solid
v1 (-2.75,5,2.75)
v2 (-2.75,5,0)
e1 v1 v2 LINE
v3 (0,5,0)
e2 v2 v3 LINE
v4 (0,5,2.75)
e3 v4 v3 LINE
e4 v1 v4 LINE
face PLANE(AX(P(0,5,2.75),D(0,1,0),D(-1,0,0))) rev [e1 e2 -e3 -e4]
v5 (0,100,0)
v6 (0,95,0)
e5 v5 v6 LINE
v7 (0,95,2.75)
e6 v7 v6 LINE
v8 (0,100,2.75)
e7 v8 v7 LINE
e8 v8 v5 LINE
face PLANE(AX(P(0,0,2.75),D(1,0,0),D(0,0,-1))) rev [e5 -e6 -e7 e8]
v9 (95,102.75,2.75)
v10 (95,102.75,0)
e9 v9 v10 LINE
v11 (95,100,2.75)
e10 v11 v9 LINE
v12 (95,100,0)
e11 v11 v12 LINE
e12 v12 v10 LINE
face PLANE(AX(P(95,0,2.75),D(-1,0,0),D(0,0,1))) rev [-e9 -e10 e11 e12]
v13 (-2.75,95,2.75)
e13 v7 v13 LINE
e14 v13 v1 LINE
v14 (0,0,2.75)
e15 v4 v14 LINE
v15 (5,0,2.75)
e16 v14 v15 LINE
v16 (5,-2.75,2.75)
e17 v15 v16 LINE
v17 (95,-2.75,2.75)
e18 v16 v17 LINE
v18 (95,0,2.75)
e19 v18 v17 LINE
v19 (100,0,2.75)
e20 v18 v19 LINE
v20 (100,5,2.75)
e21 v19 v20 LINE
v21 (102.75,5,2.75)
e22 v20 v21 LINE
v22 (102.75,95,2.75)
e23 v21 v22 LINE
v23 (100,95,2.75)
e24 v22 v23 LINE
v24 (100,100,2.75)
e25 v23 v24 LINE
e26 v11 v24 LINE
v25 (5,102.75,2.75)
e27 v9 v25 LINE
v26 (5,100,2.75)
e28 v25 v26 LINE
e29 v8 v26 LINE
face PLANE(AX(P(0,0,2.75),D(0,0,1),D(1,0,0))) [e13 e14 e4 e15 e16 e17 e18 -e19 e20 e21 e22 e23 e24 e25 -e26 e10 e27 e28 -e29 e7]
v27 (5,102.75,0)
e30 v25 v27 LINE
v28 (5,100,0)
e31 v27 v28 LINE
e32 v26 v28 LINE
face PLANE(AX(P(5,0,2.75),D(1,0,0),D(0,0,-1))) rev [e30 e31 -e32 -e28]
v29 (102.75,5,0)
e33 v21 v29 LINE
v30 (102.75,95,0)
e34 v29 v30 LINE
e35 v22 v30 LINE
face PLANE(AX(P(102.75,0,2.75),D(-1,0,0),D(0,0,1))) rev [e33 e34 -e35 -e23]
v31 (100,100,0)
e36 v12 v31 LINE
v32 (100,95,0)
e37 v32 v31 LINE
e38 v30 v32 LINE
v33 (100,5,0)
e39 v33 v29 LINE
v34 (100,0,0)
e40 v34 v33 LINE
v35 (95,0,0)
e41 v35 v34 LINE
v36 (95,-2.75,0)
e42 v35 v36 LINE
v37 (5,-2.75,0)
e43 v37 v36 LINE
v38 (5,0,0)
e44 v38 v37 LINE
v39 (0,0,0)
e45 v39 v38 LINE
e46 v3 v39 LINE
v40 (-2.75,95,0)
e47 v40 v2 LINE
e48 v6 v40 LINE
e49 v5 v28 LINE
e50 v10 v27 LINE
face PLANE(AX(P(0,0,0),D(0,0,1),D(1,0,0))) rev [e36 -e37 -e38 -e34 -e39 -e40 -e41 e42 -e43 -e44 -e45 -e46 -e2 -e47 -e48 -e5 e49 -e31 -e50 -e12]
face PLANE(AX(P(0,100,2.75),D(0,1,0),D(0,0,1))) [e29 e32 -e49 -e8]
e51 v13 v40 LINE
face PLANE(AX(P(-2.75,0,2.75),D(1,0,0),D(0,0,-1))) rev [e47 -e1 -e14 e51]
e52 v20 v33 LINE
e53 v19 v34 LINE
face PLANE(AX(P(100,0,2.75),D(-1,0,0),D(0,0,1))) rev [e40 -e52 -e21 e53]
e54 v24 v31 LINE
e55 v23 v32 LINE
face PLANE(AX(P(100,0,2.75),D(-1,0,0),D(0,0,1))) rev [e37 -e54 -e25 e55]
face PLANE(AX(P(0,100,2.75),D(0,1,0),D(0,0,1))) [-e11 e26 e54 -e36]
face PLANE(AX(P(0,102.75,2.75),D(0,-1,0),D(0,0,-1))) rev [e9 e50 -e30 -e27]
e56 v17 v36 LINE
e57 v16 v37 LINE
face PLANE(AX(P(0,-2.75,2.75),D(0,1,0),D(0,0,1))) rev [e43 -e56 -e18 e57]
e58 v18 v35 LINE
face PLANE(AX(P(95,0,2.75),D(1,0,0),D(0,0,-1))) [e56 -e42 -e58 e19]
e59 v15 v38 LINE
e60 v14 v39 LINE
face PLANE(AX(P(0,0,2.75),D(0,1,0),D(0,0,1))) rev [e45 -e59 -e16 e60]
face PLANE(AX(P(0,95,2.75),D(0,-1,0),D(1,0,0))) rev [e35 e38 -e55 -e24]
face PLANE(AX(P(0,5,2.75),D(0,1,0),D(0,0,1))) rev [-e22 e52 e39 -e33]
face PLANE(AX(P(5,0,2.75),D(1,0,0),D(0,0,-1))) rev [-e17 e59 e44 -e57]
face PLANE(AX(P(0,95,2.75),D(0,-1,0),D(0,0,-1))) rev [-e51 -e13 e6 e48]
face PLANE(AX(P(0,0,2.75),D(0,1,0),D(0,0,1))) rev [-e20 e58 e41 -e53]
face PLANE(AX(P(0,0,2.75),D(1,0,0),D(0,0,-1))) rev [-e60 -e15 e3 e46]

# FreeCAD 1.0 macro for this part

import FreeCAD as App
import Part
import Sketcher
from FreeCAD import Vector
Q = App.Units.Quantity

doc = App.newDocument("Part")
params = doc.addObject("Spreadsheet::Sheet", "Params")
for row, (alias, value) in enumerate([
    ("sketch1_width", "5 mm"),
    ("sketch1_width2", "90 mm"),
    ("sketch1_width3", "2.75 mm"),
    ("pad1_length", "2.75 mm"),
], start=1):
    params.set(f"A{row}", alias)
    params.set(f"B{row}", "=" + value)
    params.setAlias(f"B{row}", alias)

body = doc.addObject("PartDesign::Body", "Body")

# Sketch on XY plane
sketch1 = body.newObject("Sketcher::SketchObject", "Sketch")
sketch1.AttachmentSupport = (doc.getObject("XY_Plane"), [""])
sketch1.MapMode = "FlatFace"
sketch1.addGeometry(Part.LineSegment(Vector(0, 100, 0), Vector(0, 95, 0)), False)
sketch1.addGeometry(Part.LineSegment(Vector(0, 95, 0), Vector(-2.8, 95, 0)), False)
sketch1.addGeometry(Part.LineSegment(Vector(-2.8, 95, 0), Vector(-2.8, 5, 0)), False)
sketch1.addGeometry(Part.LineSegment(Vector(-2.8, 5, 0), Vector(0, 5, 0)), False)
sketch1.addGeometry(Part.LineSegment(Vector(0, 5, 0), Vector(0, 0, 0)), False)
sketch1.addGeometry(Part.LineSegment(Vector(0, 0, 0), Vector(5, 0, 0)), False)
sketch1.addGeometry(Part.LineSegment(Vector(5, 0, 0), Vector(5, -2.8, 0)), False)
sketch1.addGeometry(Part.LineSegment(Vector(5, -2.8, 0), Vector(95, -2.8, 0)), False)
sketch1.addGeometry(Part.LineSegment(Vector(95, -2.8, 0), Vector(95, 0, 0)), False)
sketch1.addGeometry(Part.LineSegment(Vector(95, 0, 0), Vector(100, 0, 0)), False)
sketch1.addGeometry(Part.LineSegment(Vector(100, 0, 0), Vector(100, 5, 0)), False)
sketch1.addGeometry(Part.LineSegment(Vector(100, 5, 0), Vector(102.8, 5, 0)), False)
sketch1.addGeometry(Part.LineSegment(Vector(102.8, 5, 0), Vector(102.8, 95, 0)), False)
sketch1.addGeometry(Part.LineSegment(Vector(102.8, 95, 0), Vector(100, 95, 0)), False)
sketch1.addGeometry(Part.LineSegment(Vector(100, 95, 0), Vector(100, 100, 0)), False)
sketch1.addGeometry(Part.LineSegment(Vector(100, 100, 0), Vector(95, 100, 0)), False)
sketch1.addGeometry(Part.LineSegment(Vector(95, 100, 0), Vector(95, 102.8, 0)), False)
sketch1.addGeometry(Part.LineSegment(Vector(95, 102.8, 0), Vector(5, 102.8, 0)), False)
sketch1.addGeometry(Part.LineSegment(Vector(5, 102.8, 0), Vector(5, 100, 0)), False)
sketch1.addGeometry(Part.LineSegment(Vector(5, 100, 0), Vector(0, 100, 0)), False)
sketch1.addConstraint(Sketcher.Constraint("Coincident", 0, 2, 1, 1))
sketch1.addConstraint(Sketcher.Constraint("Coincident", 1, 2, 2, 1))
sketch1.addConstraint(Sketcher.Constraint("Coincident", 2, 2, 3, 1))
sketch1.addConstraint(Sketcher.Constraint("Coincident", 3, 2, 4, 1))
sketch1.addConstraint(Sketcher.Constraint("Coincident", 4, 2, 5, 1))
sketch1.addConstraint(Sketcher.Constraint("Coincident", 5, 2, 6, 1))
sketch1.addConstraint(Sketcher.Constraint("Coincident", 6, 2, 7, 1))
sketch1.addConstraint(Sketcher.Constraint("Coincident", 7, 2, 8, 1))
sketch1.addConstraint(Sketcher.Constraint("Coincident", 8, 2, 9, 1))
sketch1.addConstraint(Sketcher.Constraint("Coincident", 9, 2, 10, 1))
sketch1.addConstraint(Sketcher.Constraint("Coincident", 10, 2, 11, 1))
sketch1.addConstraint(Sketcher.Constraint("Coincident", 11, 2, 12, 1))
sketch1.addConstraint(Sketcher.Constraint("Coincident", 12, 2, 13, 1))
sketch1.addConstraint(Sketcher.Constraint("Coincident", 13, 2, 14, 1))
sketch1.addConstraint(Sketcher.Constraint("Coincident", 14, 2, 15, 1))
sketch1.addConstraint(Sketcher.Constraint("Coincident", 15, 2, 16, 1))
sketch1.addConstraint(Sketcher.Constraint("Coincident", 16, 2, 17, 1))
sketch1.addConstraint(Sketcher.Constraint("Coincident", 17, 2, 18, 1))
sketch1.addConstraint(Sketcher.Constraint("Coincident", 18, 2, 19, 1))
sketch1.addConstraint(Sketcher.Constraint("Coincident", 19, 2, 0, 1))
sketch1.addConstraint(Sketcher.Constraint("Vertical", 0))
sketch1.addConstraint(Sketcher.Constraint("Horizontal", 1))
sketch1.addConstraint(Sketcher.Constraint("Vertical", 2))
sketch1.addConstraint(Sketcher.Constraint("Horizontal", 3))
sketch1.addConstraint(Sketcher.Constraint("Vertical", 4))
sketch1.addConstraint(Sketcher.Constraint("Horizontal", 5))
sketch1.addConstraint(Sketcher.Constraint("Vertical", 6))
sketch1.addConstraint(Sketcher.Constraint("Horizontal", 7))
sketch1.addConstraint(Sketcher.Constraint("Vertical", 8))
sketch1.addConstraint(Sketcher.Constraint("Horizontal", 9))
sketch1.addConstraint(Sketcher.Constraint("Vertical", 10))
sketch1.addConstraint(Sketcher.Constraint("Horizontal", 11))
sketch1.addConstraint(Sketcher.Constraint("Vertical", 12))
sketch1.addConstraint(Sketcher.Constraint("Horizontal", 13))
sketch1.addConstraint(Sketcher.Constraint("Vertical", 14))
sketch1.addConstraint(Sketcher.Constraint("Horizontal", 15))
sketch1.addConstraint(Sketcher.Constraint("Vertical", 16))
sketch1.addConstraint(Sketcher.Constraint("Horizontal", 17))
sketch1.addConstraint(Sketcher.Constraint("Vertical", 18))
sketch1.addConstraint(Sketcher.Constraint("Horizontal", 19))
sketch1.addConstraint(Sketcher.Constraint("Coincident", 4, 2, -1, 1))
sketch1.addConstraint(Sketcher.Constraint("PointOnObject", 0, 2, -2))
sketch1.addConstraint(Sketcher.Constraint("PointOnObject", 8, 2, -1))
sketch1.addConstraint(Sketcher.Constraint("Horizontal", 3, 2, 10, 2))
sketch1.addConstraint(Sketcher.Constraint("Horizontal", 1, 2, 12, 2))
sketch1.addConstraint(Sketcher.Constraint("Horizontal", 15, 2, 18, 2))
sketch1.addConstraint(Sketcher.Constraint("Vertical", 10, 2, 13, 2))
sketch1.addConstraint(Sketcher.Constraint("Vertical", 8, 2, 15, 2))
sketch1.addConstraint(Sketcher.Constraint("Vertical", 6, 2, 17, 2))
sketch1.addConstraint(Sketcher.Constraint("Equal", 5, 9))
sketch1.addConstraint(Sketcher.Constraint("Equal", 3, 11))
sketch1.addConstraint(Sketcher.Constraint("Equal", 19, 0))
sketch1.addConstraint(Sketcher.Constraint("Equal", 17, 2))
sketch1.addConstraint(Sketcher.Constraint("Equal", 0, 4))
sketch1.addConstraint(Sketcher.Constraint("Equal", 13, 6))
sketch1.addConstraint(Sketcher.Constraint("Equal", 8, 16))
sketch1.addConstraint(Sketcher.Constraint("DistanceX", 5, 1, 5, 2, Q("5 mm")))
sketch1.addConstraint(Sketcher.Constraint("DistanceX", 7, 1, 7, 2, Q("90 mm")))
sketch1.addConstraint(Sketcher.Constraint("DistanceX", 1, 2, 1, 1, Q("2.75 mm")))
sketch1.setExpression("Constraints[56]", "Params.sketch1_width")
sketch1.setExpression("Constraints[57]", "Params.sketch1_width2")
sketch1.setExpression("Constraints[58]", "Params.sketch1_width3")
pad1 = body.newObject("PartDesign::Pad", "Pad")
pad1.Profile = sketch1
pad1.setExpression("Length", "Params.pad1_length")

doc.recompute()
